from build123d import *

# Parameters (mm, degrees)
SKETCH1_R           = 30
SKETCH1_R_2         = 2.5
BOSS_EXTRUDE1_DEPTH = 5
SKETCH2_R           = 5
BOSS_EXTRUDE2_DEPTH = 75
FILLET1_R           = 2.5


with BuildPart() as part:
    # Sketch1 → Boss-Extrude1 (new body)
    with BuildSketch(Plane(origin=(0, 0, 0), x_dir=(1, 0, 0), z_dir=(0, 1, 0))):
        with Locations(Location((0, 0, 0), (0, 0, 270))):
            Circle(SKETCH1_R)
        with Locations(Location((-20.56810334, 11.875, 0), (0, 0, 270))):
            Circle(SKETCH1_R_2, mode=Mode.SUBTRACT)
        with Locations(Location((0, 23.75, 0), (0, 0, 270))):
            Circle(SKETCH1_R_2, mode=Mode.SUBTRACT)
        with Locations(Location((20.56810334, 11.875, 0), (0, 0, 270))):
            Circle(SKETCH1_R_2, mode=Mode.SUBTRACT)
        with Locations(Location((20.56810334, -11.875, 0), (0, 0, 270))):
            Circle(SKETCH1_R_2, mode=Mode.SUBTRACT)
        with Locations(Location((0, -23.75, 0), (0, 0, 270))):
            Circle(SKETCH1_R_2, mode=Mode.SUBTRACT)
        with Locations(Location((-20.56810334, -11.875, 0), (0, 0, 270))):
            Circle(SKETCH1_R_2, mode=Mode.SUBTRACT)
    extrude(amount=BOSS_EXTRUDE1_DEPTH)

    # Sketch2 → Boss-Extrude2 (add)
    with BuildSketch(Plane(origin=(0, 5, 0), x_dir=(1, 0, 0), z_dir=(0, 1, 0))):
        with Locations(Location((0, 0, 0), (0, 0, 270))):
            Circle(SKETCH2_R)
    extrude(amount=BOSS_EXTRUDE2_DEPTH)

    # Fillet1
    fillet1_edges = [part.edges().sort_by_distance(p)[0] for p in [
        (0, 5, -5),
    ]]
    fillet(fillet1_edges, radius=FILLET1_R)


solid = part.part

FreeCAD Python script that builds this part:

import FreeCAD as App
import Part
import Sketcher
from FreeCAD import Vector


def edges_at(feature, points):
    """Names of the edges that pass closest to the given points."""
    edges = feature.Shape.Edges
    near = lambda p: min(range(len(edges)), key=lambda i: edges[i].distToShape(Part.Vertex(*p))[0])
    return sorted({f"Edge{near(p) + 1}" for p in points})

doc = App.newDocument("Part")
body = doc.addObject("PartDesign::Body", "Body")

# Sketch on XZ plane
sketch1 = body.newObject("Sketcher::SketchObject", "Sketch")
sketch1.AttachmentSupport = (doc.getObject("XZ_Plane"), [""])
sketch1.MapMode = "FlatFace"
sketch1.addGeometry([
    Part.Circle(Vector(0, 0, 0), Vector(0, 0, 1), 30),  # 0
    Part.Circle(Vector(-20.568103, -11.875, 0), Vector(0, 0, 1), 2.5),  # 1
    Part.Circle(Vector(0, -23.75, 0), Vector(0, 0, 1), 2.5),  # 2
    Part.Circle(Vector(-20.568103, 11.875, 0), Vector(0, 0, 1), 2.5),  # 3
    Part.Circle(Vector(20.568103, -11.875, 0), Vector(0, 0, 1), 2.5),  # 4
    Part.Circle(Vector(0, 23.75, 0), Vector(0, 0, 1), 2.5),  # 5
    Part.Circle(Vector(20.568103, 11.875, 0), Vector(0, 0, 1), 2.5),  # 6
], False)
sketch1.addConstraint([
    Sketcher.Constraint("Coincident", 0, 3, -1, 1),
    Sketcher.Constraint("Equal", 1, 2),
    Sketcher.Constraint("Equal", 2, 3),
    Sketcher.Constraint("Equal", 3, 4),
    Sketcher.Constraint("Equal", 4, 5),
    Sketcher.Constraint("Equal", 5, 6),
    Sketcher.Constraint("Symmetric", 3, 3, 4, 3, -1, 1),
    Sketcher.Constraint("Symmetric", 2, 3, 5, 3, -1, 1),
    Sketcher.Constraint("Symmetric", 1, 3, 6, 3, -1, 1),
    Sketcher.Constraint("Symmetric", 1, 3, 4, 3, -2),
    Sketcher.Constraint("PointOnObject", 2, 3, -2),
    Sketcher.Constraint("Diameter", 0, 60.0),
    Sketcher.Constraint("Diameter", 1, 5.0),
    Sketcher.Constraint("DistanceY", 2, 3, 5, 3, 47.5),
    Sketcher.Constraint("DistanceY", 1, 3, 3, 3, 23.75),
    Sketcher.Constraint("DistanceX", 1, 3, -1, 1, 20.568103),
])
pad1 = body.newObject("PartDesign::Pad", "Pad")
pad1.Profile = sketch1
pad1.Length = 5
pad1.Reversed = True

# Sketch on XZ plane
sketch2 = body.newObject("Sketcher::SketchObject", "Sketch001")
sketch2.AttachmentSupport = (doc.getObject("XZ_Plane"), [""])
sketch2.MapMode = "FlatFace"
sketch2.AttachmentOffset = App.Placement(Vector(0, 0, -5), App.Rotation())
sketch2.addGeometry(Part.Circle(Vector(0, 0, 0), Vector(0, 0, 1), 5), False)
sketch2.addConstraint([
    Sketcher.Constraint("Coincident", 0, 3, -1, 1),
    Sketcher.Constraint("Diameter", 0, 10.0),
])
pad2 = body.newObject("PartDesign::Pad", "Pad001")
pad2.Profile = sketch2
pad2.Length = 75
pad2.Reversed = True
doc.recompute()

fillet = body.newObject("PartDesign::Fillet", "Fillet")
fillet.Base = (pad2, edges_at(pad2, [(0, 5, -5)]))
fillet.Radius = 2.5

doc.recompute()
